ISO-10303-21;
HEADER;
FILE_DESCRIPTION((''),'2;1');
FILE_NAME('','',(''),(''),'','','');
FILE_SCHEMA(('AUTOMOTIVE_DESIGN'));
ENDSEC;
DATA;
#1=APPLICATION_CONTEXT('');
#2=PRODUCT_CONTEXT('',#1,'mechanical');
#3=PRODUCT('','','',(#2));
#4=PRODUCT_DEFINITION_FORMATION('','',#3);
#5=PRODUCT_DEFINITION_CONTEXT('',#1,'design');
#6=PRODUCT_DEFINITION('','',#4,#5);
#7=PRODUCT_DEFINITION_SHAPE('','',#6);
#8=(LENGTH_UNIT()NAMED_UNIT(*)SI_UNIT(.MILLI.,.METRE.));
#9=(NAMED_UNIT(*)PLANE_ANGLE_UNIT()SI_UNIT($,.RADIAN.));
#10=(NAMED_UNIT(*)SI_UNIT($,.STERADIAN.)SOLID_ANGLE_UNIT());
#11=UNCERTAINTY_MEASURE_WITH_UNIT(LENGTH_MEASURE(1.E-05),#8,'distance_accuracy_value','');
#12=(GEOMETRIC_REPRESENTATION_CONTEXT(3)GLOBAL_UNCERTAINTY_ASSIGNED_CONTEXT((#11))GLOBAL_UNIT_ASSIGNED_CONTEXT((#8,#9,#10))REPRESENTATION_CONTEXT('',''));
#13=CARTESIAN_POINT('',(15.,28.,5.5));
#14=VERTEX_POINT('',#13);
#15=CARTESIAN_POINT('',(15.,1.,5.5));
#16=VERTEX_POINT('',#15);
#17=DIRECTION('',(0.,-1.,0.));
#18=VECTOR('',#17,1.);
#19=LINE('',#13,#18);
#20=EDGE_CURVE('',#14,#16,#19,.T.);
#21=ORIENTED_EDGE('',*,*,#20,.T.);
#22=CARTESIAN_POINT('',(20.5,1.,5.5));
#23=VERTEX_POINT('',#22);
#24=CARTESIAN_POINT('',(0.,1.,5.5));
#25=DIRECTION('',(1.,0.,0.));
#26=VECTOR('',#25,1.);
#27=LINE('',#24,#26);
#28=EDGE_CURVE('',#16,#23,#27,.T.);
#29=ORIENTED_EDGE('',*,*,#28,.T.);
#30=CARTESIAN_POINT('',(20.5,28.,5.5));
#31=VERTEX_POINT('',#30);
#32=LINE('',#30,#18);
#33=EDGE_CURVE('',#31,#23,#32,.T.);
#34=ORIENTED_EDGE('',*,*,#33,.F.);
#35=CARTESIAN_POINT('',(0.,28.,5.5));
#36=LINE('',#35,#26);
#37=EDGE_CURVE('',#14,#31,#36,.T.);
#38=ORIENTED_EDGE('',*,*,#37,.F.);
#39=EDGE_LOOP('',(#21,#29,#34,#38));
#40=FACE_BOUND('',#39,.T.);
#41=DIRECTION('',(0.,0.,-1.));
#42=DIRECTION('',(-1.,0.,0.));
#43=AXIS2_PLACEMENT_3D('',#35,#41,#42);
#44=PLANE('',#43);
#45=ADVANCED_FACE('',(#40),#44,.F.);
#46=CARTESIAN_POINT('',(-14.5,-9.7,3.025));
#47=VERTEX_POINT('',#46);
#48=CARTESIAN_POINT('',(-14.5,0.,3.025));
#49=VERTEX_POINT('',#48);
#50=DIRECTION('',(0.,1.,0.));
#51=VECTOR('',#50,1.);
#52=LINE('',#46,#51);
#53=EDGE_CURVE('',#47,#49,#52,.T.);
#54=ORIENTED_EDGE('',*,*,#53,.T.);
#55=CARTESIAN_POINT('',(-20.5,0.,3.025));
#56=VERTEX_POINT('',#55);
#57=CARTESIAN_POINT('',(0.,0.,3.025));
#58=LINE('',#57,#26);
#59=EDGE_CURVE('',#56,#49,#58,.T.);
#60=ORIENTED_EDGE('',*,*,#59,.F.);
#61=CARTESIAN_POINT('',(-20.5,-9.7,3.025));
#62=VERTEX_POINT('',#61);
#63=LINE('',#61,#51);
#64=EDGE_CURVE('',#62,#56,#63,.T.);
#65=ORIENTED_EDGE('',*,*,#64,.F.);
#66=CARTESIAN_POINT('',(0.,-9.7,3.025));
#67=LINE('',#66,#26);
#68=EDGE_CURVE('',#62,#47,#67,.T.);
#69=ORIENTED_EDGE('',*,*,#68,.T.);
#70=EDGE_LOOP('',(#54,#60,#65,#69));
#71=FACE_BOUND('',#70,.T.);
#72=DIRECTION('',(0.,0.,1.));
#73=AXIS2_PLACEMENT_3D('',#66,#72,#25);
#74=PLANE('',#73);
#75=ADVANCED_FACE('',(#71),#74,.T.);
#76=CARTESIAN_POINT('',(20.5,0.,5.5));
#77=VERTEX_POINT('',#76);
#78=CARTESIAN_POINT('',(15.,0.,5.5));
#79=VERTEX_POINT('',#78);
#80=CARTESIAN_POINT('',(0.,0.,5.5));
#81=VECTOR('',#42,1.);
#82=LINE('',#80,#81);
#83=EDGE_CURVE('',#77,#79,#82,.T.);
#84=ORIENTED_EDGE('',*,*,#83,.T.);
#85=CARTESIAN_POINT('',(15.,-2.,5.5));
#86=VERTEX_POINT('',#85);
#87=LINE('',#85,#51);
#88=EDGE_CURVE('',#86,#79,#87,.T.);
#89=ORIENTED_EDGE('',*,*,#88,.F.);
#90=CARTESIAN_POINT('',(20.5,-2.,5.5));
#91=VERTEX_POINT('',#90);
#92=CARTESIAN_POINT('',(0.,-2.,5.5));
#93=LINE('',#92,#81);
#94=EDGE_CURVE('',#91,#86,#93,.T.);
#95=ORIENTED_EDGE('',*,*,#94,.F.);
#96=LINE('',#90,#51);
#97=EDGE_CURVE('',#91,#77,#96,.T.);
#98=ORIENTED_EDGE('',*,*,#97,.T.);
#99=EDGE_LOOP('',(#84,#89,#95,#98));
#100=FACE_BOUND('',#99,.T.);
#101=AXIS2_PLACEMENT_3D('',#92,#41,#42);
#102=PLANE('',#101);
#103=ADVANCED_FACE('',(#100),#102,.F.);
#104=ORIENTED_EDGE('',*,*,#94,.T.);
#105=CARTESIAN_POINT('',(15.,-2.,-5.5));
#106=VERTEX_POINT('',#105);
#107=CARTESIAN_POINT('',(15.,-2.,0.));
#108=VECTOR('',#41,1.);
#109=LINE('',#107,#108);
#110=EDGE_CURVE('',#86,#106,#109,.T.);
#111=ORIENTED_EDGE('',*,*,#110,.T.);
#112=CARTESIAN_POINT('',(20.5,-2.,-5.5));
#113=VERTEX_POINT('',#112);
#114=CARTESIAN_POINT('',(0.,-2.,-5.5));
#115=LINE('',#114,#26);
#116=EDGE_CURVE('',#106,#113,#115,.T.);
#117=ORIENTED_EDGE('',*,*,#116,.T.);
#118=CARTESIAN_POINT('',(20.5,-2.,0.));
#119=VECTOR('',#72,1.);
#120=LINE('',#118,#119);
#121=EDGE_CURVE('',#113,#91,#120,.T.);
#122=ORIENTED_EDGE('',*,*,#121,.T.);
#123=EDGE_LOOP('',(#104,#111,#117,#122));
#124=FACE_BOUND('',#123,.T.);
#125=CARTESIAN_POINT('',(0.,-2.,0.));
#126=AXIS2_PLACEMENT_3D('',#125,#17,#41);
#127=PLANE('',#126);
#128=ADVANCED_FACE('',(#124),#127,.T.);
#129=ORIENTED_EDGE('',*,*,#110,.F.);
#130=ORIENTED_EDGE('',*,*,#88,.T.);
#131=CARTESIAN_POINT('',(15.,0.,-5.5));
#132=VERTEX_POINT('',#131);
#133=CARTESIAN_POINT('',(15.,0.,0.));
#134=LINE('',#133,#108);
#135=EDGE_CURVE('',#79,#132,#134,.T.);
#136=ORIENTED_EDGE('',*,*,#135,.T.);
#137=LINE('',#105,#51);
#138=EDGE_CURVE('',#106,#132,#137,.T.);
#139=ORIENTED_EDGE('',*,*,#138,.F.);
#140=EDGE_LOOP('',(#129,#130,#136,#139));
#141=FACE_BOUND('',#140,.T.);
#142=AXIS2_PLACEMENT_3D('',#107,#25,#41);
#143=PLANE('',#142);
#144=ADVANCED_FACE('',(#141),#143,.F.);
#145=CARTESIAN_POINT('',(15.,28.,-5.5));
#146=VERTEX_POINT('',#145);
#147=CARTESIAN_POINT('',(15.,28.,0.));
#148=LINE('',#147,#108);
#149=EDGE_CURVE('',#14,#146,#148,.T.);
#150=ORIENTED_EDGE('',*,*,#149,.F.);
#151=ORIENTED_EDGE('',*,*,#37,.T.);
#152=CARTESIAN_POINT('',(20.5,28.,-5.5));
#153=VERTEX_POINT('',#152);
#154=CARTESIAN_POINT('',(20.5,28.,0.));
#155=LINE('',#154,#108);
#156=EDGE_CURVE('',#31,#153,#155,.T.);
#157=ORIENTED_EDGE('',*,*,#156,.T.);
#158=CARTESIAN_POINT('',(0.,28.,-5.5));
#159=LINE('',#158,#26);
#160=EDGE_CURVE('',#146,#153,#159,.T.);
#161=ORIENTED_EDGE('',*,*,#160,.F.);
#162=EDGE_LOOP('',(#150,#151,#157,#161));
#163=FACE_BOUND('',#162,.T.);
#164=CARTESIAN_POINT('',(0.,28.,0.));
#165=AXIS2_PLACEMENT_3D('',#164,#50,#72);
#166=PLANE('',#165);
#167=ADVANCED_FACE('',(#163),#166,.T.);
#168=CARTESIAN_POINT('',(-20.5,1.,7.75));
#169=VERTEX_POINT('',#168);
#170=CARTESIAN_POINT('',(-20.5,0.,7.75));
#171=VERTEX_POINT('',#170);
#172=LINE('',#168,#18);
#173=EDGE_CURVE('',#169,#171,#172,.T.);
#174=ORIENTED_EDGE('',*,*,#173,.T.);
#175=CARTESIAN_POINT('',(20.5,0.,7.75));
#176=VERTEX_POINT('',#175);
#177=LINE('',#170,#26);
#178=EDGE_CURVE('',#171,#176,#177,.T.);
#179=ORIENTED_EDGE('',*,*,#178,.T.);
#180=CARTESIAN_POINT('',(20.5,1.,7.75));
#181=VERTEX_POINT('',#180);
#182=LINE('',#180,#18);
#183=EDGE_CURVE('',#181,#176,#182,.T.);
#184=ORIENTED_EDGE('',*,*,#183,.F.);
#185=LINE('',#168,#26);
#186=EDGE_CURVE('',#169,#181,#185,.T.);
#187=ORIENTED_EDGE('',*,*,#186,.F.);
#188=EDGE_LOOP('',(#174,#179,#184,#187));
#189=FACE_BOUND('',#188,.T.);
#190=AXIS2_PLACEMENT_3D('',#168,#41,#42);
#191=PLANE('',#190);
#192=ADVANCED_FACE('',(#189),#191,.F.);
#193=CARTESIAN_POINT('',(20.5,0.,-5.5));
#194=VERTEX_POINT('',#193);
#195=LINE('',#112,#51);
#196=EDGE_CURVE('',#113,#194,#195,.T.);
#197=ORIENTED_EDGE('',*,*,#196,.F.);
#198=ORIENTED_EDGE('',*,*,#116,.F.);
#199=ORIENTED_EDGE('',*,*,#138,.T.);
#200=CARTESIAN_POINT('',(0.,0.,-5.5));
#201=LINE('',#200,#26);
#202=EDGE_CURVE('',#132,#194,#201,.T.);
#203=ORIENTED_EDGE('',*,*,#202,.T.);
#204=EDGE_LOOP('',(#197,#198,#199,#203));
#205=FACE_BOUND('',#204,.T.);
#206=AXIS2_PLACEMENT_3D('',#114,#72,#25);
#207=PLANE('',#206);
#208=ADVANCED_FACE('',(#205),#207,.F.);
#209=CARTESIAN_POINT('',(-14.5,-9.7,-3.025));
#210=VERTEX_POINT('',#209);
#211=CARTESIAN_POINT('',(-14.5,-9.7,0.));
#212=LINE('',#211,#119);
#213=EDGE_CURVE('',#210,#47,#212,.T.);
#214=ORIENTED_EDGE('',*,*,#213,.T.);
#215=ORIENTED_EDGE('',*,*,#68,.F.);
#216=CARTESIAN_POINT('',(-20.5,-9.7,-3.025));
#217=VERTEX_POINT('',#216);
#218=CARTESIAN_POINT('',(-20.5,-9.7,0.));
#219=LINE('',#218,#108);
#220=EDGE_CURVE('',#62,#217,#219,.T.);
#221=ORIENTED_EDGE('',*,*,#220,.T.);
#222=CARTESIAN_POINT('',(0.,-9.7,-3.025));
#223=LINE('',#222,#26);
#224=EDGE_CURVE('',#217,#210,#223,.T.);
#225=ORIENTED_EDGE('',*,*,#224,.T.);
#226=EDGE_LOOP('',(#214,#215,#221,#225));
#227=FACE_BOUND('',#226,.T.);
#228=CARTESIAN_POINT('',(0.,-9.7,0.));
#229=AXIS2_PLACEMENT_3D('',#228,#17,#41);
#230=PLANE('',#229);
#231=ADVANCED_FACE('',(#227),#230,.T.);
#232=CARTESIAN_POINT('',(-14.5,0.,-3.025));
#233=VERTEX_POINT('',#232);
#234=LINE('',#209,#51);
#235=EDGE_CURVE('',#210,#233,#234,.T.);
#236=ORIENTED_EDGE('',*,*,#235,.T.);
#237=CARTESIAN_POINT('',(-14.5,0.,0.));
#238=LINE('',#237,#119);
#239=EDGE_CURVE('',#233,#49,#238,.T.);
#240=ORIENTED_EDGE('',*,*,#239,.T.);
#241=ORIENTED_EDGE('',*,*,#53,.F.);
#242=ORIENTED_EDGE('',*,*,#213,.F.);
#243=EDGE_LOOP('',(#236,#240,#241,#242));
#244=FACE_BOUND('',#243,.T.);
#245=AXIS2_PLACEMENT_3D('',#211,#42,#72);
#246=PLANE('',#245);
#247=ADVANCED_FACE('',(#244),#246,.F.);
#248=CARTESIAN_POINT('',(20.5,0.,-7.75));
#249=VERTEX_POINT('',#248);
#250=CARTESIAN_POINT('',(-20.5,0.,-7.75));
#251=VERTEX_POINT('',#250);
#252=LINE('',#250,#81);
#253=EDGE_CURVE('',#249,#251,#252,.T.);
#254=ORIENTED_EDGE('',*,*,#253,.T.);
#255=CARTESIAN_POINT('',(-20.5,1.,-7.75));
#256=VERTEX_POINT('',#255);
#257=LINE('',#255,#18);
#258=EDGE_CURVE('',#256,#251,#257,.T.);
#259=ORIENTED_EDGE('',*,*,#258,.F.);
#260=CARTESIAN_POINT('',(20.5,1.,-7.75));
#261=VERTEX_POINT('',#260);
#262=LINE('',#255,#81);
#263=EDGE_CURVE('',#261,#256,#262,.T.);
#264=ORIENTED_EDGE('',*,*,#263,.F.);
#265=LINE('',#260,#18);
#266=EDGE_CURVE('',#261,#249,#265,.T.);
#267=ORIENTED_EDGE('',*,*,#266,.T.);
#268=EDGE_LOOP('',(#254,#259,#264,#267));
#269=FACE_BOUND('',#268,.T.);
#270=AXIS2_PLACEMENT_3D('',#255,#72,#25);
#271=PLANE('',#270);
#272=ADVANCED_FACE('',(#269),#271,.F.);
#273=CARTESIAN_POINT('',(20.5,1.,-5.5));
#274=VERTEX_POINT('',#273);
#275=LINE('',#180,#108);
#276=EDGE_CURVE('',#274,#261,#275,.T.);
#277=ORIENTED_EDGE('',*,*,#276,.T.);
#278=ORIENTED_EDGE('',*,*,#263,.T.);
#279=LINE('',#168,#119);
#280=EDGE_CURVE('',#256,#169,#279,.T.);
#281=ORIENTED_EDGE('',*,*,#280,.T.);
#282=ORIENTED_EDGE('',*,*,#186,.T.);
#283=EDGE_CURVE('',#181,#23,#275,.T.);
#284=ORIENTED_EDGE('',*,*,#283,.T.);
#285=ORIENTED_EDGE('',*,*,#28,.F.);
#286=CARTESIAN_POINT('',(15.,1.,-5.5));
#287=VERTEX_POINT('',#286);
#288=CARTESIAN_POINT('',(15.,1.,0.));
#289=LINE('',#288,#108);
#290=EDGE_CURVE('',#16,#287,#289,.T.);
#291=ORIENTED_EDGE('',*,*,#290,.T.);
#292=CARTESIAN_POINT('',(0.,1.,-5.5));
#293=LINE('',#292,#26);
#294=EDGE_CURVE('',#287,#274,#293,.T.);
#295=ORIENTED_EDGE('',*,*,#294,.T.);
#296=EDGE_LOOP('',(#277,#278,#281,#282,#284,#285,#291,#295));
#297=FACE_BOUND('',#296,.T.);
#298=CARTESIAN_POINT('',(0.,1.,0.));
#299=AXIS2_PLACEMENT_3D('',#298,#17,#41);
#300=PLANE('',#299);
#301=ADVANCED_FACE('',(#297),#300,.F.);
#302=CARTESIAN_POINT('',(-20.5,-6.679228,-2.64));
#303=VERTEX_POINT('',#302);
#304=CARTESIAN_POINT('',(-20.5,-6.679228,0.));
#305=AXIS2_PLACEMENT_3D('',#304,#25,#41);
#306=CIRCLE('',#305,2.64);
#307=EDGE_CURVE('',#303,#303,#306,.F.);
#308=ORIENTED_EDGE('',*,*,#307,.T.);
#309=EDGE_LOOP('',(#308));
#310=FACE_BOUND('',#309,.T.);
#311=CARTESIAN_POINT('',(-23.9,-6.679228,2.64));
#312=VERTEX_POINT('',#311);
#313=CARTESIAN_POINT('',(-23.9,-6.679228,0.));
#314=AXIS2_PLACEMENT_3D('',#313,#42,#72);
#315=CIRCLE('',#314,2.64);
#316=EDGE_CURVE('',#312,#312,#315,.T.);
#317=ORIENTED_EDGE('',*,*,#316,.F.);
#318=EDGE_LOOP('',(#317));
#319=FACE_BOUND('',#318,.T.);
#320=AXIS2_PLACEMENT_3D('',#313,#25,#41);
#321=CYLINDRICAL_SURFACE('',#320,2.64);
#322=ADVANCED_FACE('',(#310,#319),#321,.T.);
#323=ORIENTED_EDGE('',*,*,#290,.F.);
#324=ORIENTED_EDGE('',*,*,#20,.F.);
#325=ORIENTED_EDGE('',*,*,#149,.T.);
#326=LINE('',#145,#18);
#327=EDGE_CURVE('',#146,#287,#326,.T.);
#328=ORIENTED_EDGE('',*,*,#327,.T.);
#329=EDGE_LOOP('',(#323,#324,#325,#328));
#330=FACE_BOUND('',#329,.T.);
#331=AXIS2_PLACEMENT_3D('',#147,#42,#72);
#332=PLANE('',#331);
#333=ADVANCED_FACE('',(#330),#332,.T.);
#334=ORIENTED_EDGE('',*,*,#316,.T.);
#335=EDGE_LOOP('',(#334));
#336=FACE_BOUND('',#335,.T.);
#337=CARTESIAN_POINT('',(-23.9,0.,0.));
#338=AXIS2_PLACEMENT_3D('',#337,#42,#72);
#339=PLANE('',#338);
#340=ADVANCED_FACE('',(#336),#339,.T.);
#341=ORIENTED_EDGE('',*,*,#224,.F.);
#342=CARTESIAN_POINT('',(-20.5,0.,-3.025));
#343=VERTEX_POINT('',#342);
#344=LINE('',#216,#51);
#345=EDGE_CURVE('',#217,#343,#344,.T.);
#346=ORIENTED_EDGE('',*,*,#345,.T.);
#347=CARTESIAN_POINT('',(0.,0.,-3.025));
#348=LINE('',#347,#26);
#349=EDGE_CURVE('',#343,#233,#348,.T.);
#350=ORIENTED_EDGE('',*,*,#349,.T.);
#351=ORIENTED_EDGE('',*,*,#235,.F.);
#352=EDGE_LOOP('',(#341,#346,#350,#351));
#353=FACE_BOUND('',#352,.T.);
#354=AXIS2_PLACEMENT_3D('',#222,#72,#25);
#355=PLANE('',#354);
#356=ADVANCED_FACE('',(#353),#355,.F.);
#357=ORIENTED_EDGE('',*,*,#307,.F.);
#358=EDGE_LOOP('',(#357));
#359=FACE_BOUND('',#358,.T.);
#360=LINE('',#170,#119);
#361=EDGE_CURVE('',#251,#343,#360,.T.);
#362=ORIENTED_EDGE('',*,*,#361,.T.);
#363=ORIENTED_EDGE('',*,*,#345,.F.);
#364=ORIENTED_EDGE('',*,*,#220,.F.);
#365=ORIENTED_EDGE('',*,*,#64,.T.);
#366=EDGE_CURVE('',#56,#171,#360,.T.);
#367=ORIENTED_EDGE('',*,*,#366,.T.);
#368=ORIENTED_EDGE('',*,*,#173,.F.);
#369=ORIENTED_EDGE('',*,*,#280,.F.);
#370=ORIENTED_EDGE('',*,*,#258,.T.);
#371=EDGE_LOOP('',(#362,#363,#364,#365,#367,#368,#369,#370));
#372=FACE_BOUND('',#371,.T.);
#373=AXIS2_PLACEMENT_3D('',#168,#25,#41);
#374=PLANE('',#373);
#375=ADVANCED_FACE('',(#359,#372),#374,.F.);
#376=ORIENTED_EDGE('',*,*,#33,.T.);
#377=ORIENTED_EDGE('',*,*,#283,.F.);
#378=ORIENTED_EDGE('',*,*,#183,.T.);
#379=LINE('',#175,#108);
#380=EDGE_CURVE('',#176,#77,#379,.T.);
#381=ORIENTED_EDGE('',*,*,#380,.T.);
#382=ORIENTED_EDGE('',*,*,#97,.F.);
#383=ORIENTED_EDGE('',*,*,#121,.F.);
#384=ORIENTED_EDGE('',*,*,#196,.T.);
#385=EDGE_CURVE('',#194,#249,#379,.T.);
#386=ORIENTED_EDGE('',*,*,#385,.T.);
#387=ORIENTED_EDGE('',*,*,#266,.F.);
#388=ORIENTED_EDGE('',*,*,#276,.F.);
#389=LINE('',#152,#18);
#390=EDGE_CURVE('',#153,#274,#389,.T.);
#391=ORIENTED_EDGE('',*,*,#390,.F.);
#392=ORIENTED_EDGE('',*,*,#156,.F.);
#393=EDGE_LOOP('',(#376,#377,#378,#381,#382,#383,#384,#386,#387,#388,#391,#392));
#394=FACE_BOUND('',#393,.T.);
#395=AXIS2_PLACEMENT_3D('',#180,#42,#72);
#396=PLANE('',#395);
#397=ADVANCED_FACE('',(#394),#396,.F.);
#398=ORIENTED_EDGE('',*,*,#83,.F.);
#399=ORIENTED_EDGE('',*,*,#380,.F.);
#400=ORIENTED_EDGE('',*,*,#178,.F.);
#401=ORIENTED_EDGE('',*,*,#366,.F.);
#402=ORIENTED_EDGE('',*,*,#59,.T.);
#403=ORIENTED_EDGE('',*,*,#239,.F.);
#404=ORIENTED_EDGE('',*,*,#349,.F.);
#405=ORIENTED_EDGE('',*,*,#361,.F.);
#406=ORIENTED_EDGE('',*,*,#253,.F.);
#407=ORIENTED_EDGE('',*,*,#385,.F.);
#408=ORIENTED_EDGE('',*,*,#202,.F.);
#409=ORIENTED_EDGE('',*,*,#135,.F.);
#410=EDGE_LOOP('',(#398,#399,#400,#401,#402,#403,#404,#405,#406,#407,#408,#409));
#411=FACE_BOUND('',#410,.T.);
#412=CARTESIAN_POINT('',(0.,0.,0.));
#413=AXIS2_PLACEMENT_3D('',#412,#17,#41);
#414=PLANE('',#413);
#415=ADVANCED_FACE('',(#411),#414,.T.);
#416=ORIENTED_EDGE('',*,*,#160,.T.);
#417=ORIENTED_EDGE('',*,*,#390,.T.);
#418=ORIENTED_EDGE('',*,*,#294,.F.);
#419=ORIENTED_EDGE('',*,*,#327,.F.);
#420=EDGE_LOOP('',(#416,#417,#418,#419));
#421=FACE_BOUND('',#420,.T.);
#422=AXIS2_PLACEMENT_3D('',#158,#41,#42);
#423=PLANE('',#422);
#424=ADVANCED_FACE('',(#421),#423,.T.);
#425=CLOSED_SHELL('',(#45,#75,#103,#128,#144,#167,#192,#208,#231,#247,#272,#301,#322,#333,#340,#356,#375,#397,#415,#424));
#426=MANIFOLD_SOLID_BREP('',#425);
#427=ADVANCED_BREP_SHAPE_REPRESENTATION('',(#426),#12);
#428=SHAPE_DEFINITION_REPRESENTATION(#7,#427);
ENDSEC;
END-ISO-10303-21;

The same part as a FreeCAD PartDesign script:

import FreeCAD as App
import Part
import Sketcher
from FreeCAD import Vector


def add_polygon(sketch, points):
    """Adds a closed chain of lines whose ends are joined by coincident constraints."""
    first, n = sketch.GeometryCount, len(points)
    for a, b in zip(points, points[1:] + points[:1]):
        sketch.addGeometry(Part.LineSegment(App.Vector(*a, 0), App.Vector(*b, 0)), False)
    for i in range(n):
        sketch.addConstraint(Sketcher.Constraint("Coincident", first + i, 2, first + (i + 1) % n, 1))

doc = App.newDocument("Part")
params = doc.addObject("Spreadsheet::Sheet", "Params")
for row, (alias, value) in enumerate([
    ("sketch1_width", "41 mm"),
    ("sketch1_height", "15.5 mm"),
    ("pad1_length", "1 mm"),
    ("sketch2_height", "11 mm"),
    ("sketch2_width", "5.5 mm"),
    ("pad2_length", "27 mm"),
    ("sketch3_height", "11 mm"),
    ("sketch3_width", "5.5 mm"),
    ("pad3_length", "2 mm"),
    ("sketch4_width", "6 mm"),
    ("sketch4_height", "6.05 mm"),
    ("pad4_length", "9.7 mm"),
    ("sketch5_diameter", "5.28 mm"),
    ("pad5_length", "3.4 mm"),
], start=1):
    params.set(f"A{row}", alias)
    params.set(f"B{row}", "=" + value)
    params.setAlias(f"B{row}", alias)

body = doc.addObject("PartDesign::Body", "Body")

sketch1 = body.newObject("Sketcher::SketchObject", "Sketch")
sketch1.AttachmentSupport = (doc.getObject("XZ_Plane"), [""])
sketch1.MapMode = "FlatFace"
add_polygon(sketch1, [(-20.5, -7.75), (-20.5, 7.75), (20.5, 7.75), (20.5, -7.75)])
sketch1.addConstraint([
    Sketcher.Constraint("Vertical", 0),
    Sketcher.Constraint("Horizontal", 1),
    Sketcher.Constraint("Vertical", 2),
    Sketcher.Constraint("Horizontal", 3),
    Sketcher.Constraint("Symmetric", 0, 2, 2, 2, -1, 1),
    Sketcher.Constraint("DistanceX", 1, 1, 1, 2, 41.0),
    Sketcher.Constraint("DistanceY", 0, 1, 0, 2, 15.5),
])
sketch1.setExpression("Constraints[9]", "Params.sketch1_width")
sketch1.setExpression("Constraints[10]", "Params.sketch1_height")
pad1 = body.newObject("PartDesign::Pad", "Pad")
pad1.Profile = sketch1
pad1.setExpression("Length", "Params.pad1_length")
pad1.Reversed = True

sketch2 = body.newObject("Sketcher::SketchObject", "Sketch001")
sketch2.AttachmentSupport = (doc.getObject("XZ_Plane"), [""])
sketch2.MapMode = "FlatFace"
sketch2.AttachmentOffset = App.Placement(Vector(0, 0, -1), App.Rotation())
add_polygon(sketch2, [(15, -5.5), (15, 5.5), (20.5, 5.5), (20.5, -5.5)])
sketch2.addConstraint([
    Sketcher.Constraint("Vertical", 0),
    Sketcher.Constraint("Horizontal", 1),
    Sketcher.Constraint("Vertical", 2),
    Sketcher.Constraint("Horizontal", 3),
    Sketcher.Constraint("DistanceY", 0, 1, 0, 2, 11.0),
    Sketcher.Constraint("DistanceX", 1, 1, 1, 2, 5.5),
    Sketcher.Constraint("DistanceX", -1, 1, 0, 2, 15.0),
    Sketcher.Constraint("DistanceY", -1, 1, 0, 2, 5.5),
])
sketch2.setExpression("Constraints[8]", "Params.sketch2_height")
sketch2.setExpression("Constraints[9]", "Params.sketch2_width")
pad2 = body.newObject("PartDesign::Pad", "Pad001")
pad2.Profile = sketch2
pad2.setExpression("Length", "Params.pad2_length")
pad2.Reversed = True

sketch3 = body.newObject("Sketcher::SketchObject", "Sketch002")
sketch3.AttachmentSupport = (doc.getObject("XZ_Plane"), [""])
sketch3.MapMode = "FlatFace"
add_polygon(sketch3, [(15, 5.5), (15, -5.5), (20.5, -5.5), (20.5, 5.5)])
sketch3.addConstraint([
    Sketcher.Constraint("Vertical", 0),
    Sketcher.Constraint("Horizontal", 1),
    Sketcher.Constraint("Vertical", 2),
    Sketcher.Constraint("Horizontal", 3),
    Sketcher.Constraint("DistanceY", 0, 2, 0, 1, 11.0),
    Sketcher.Constraint("DistanceX", 1, 1, 1, 2, 5.5),
    Sketcher.Constraint("DistanceX", -1, 1, 0, 2, 15.0),
    Sketcher.Constraint("DistanceY", 0, 2, -1, 1, 5.5),
])
sketch3.setExpression("Constraints[8]", "Params.sketch3_height")
sketch3.setExpression("Constraints[9]", "Params.sketch3_width")
pad3 = body.newObject("PartDesign::Pad", "Pad002")
pad3.Profile = sketch3
pad3.setExpression("Length", "Params.pad3_length")

sketch4 = body.newObject("Sketcher::SketchObject", "Sketch003")
sketch4.AttachmentSupport = (doc.getObject("XZ_Plane"), [""])
sketch4.MapMode = "FlatFace"
add_polygon(sketch4, [(-20.5, 3.025), (-20.5, -3.025), (-14.5, -3.025), (-14.5, 3.025)])
sketch4.addConstraint([
    Sketcher.Constraint("Vertical", 0),
    Sketcher.Constraint("Horizontal", 1),
    Sketcher.Constraint("Vertical", 2),
    Sketcher.Constraint("Horizontal", 3),
    Sketcher.Constraint("DistanceX", 1, 1, 1, 2, 6.0),
    Sketcher.Constraint("DistanceY", 0, 2, 0, 1, 6.05),
    Sketcher.Constraint("DistanceX", 0, 2, -1, 1, 20.5),
    Sketcher.Constraint("DistanceY", 0, 2, -1, 1, 3.025),
])
sketch4.setExpression("Constraints[8]", "Params.sketch4_width")
sketch4.setExpression("Constraints[9]", "Params.sketch4_height")
pad4 = body.newObject("PartDesign::Pad", "Pad003")
pad4.Profile = sketch4
pad4.setExpression("Length", "Params.pad4_length")

sketch5 = body.newObject("Sketcher::SketchObject", "Sketch004")
sketch5.AttachmentSupport = (doc.getObject("YZ_Plane"), [""])
sketch5.MapMode = "FlatFace"
sketch5.AttachmentOffset = App.Placement(Vector(0, 0, -20.5), App.Rotation())
sketch5.addGeometry(Part.Circle(Vector(-6.679228, 0, 0), Vector(0, 0, 1), 2.64), False)
sketch5.addConstraint([
    Sketcher.Constraint("PointOnObject", 0, 3, -1),
    Sketcher.Constraint("Diameter", 0, 5.28),
    Sketcher.Constraint("DistanceX", 0, 3, -1, 1, 6.679228),
])
sketch5.setExpression("Constraints[1]", "Params.sketch5_diameter")
pad5 = body.newObject("PartDesign::Pad", "Pad004")
pad5.Profile = sketch5
pad5.setExpression("Length", "Params.pad5_length")
pad5.Reversed = True

doc.recompute()
